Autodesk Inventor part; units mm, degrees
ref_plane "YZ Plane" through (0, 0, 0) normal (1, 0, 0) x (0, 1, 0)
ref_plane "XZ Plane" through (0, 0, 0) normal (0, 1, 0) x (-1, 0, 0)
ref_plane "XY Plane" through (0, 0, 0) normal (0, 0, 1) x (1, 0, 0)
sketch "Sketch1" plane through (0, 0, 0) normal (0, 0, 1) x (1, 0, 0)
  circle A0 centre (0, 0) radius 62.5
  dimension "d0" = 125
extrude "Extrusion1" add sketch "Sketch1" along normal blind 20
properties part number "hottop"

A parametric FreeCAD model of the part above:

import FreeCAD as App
import Part
import Sketcher

V = App.Vector
Q = App.Units.Quantity

doc = App.newDocument("Part")
body = doc.addObject("PartDesign::Body", "Body")

# Sketch on XY plane
sketch1 = body.newObject("Sketcher::SketchObject", "Sketch")
sketch1.AttachmentSupport = (doc.getObject("XY_Plane"), [""])
sketch1.MapMode = "FlatFace"
sketch1.addGeometry(Part.Circle(V(0, 0, 0), V(0, 0, 1), 62.5), False)
sketch1.addConstraint(Sketcher.Constraint("Coincident", 0, 3, -1, 1))
sketch1.addConstraint(Sketcher.Constraint("Diameter", 0, Q("125 mm")))
pad1 = body.newObject("PartDesign::Pad", "Pad")
pad1.Profile = sketch1
pad1.Length = 20

doc.recompute()
